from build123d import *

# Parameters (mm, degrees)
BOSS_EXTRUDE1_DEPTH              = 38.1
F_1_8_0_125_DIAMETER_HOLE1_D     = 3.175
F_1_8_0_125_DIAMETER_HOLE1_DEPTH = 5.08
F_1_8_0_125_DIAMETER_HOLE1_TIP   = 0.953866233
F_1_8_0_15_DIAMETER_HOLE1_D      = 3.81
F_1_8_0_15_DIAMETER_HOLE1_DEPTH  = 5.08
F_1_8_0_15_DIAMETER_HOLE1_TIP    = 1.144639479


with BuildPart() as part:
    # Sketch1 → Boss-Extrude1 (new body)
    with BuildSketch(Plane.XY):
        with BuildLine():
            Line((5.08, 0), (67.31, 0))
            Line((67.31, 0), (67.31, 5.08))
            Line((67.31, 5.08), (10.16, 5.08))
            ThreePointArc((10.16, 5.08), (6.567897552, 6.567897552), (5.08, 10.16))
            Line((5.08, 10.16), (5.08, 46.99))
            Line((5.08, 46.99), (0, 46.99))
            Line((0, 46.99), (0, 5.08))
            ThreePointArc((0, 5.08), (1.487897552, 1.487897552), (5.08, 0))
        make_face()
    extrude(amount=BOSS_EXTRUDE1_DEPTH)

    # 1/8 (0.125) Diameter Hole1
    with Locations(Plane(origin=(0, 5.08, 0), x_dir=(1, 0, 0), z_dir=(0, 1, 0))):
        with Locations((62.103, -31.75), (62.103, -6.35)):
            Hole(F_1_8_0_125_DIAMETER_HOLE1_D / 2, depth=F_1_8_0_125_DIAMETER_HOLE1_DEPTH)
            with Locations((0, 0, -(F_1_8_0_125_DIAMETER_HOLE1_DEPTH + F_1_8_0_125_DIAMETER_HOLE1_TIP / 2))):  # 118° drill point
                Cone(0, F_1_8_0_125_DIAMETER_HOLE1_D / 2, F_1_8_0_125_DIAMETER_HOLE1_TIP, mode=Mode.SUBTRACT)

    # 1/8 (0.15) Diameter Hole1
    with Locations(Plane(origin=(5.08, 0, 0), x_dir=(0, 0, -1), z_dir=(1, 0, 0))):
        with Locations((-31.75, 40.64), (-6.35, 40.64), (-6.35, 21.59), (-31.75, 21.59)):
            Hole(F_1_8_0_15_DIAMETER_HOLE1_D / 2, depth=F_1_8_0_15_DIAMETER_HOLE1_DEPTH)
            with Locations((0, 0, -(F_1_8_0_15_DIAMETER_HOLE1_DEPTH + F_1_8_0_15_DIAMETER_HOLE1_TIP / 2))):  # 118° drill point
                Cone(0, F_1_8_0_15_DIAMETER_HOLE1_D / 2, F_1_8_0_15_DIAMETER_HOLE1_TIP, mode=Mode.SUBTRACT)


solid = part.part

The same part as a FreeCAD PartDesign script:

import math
import FreeCAD as App
import Part
import Sketcher
Q = App.Units.Quantity

doc = App.newDocument("Part")
body = doc.addObject("PartDesign::Body", "Body")

sketch1 = body.newObject("Sketcher::SketchObject", "Sketch")
sketch1.AttachmentSupport = (doc.getObject("XY_Plane"), [""])
sketch1.MapMode = "FlatFace"
sketch1.addGeometry(Part.LineSegment(App.Vector(5, 0, 0), App.Vector(67, 0, 0)), False)
sketch1.addGeometry(Part.LineSegment(App.Vector(67, 0, 0), App.Vector(67, 5, 0)), False)
sketch1.addGeometry(Part.LineSegment(App.Vector(67, 5, 0), App.Vector(10, 5, 0)), False)
sketch1.addGeometry(Part.ArcOfCircle(Part.Circle(App.Vector(10, 10, 0), App.Vector(0, 0, 1), 5), math.radians(-180), math.radians(-90)), False)
sketch1.addGeometry(Part.LineSegment(App.Vector(5, 10, 0), App.Vector(5, 47, 0)), False)
sketch1.addGeometry(Part.LineSegment(App.Vector(5, 47, 0), App.Vector(0, 47, 0)), False)
sketch1.addGeometry(Part.LineSegment(App.Vector(0, 47, 0), App.Vector(0, 5, 0)), False)
sketch1.addGeometry(Part.ArcOfCircle(Part.Circle(App.Vector(5, 5, 0), App.Vector(0, 0, 1), 5), math.radians(-180), math.radians(-90)), False)
sketch1.addConstraint(Sketcher.Constraint("Coincident", 0, 2, 1, 1))
sketch1.addConstraint(Sketcher.Constraint("Coincident", 1, 2, 2, 1))
sketch1.addConstraint(Sketcher.Constraint("Tangent", 2, 2, 3, 2))
sketch1.addConstraint(Sketcher.Constraint("Tangent", 3, 1, 4, 1))
sketch1.addConstraint(Sketcher.Constraint("Coincident", 4, 2, 5, 1))
sketch1.addConstraint(Sketcher.Constraint("Coincident", 5, 2, 6, 1))
sketch1.addConstraint(Sketcher.Constraint("Tangent", 6, 2, 7, 1))
sketch1.addConstraint(Sketcher.Constraint("Tangent", 7, 2, 0, 1))
sketch1.addConstraint(Sketcher.Constraint("Horizontal", 0))
sketch1.addConstraint(Sketcher.Constraint("Vertical", 1))
sketch1.addConstraint(Sketcher.Constraint("Horizontal", 2))
sketch1.addConstraint(Sketcher.Constraint("Vertical", 4))
sketch1.addConstraint(Sketcher.Constraint("Horizontal", 5))
sketch1.addConstraint(Sketcher.Constraint("Vertical", 6))
sketch1.addConstraint(Sketcher.Constraint("Equal", 3, 7))
sketch1.addConstraint(Sketcher.Constraint("PointOnObject", 0, 2, -1))
sketch1.addConstraint(Sketcher.Constraint("PointOnObject", 5, 2, -2))
sketch1.addConstraint(Sketcher.Constraint("Horizontal", 7, 3, 1, 2))
sketch1.addConstraint(Sketcher.Constraint("Vertical", 7, 3, 3, 1))
sketch1.addConstraint(Sketcher.Constraint("Radius", 3, Q("0.2 in")))
sketch1.addConstraint(Sketcher.Constraint("DistanceX", 0, 1, 0, 2, Q("2.45 in")))
sketch1.addConstraint(Sketcher.Constraint("DistanceY", 4, 1, 4, 2, Q("1.45 in")))
pad1 = body.newObject("PartDesign::Pad", "Pad")
pad1.Profile = sketch1
pad1.Length = Q("1.5 in")

sketch2 = body.newObject("Sketcher::SketchObject", "Sketch001")
sketch2.AttachmentSupport = (doc.getObject("XZ_Plane"), [""])
sketch2.MapMode = "FlatFace"
sketch2.AttachmentOffset = App.Placement(App.Vector(0, 0, -0.2 * 25.4), App.Rotation())
sketch2.addGeometry(Part.Circle(App.Vector(62.1, 31.8, 0), App.Vector(0, 0, 1), 1.6), False)
sketch2.addGeometry(Part.Circle(App.Vector(62.1, 6.3, 0), App.Vector(0, 0, 1), 1.6), False)
sketch2.addConstraint(Sketcher.Constraint("Equal", 0, 1))
sketch2.addConstraint(Sketcher.Constraint("Vertical", 0, 3, 1, 3))
sketch2.addConstraint(Sketcher.Constraint("Diameter", 0, Q("0.125 in")))
sketch2.addConstraint(Sketcher.Constraint("DistanceY", 1, 3, 0, 3, Q("1 in")))
sketch2.addConstraint(Sketcher.Constraint("DistanceY", -1, 1, 0, 3, Q("1.25 in")))
sketch2.addConstraint(Sketcher.Constraint("DistanceX", -1, 1, 0, 3, Q("2.445 in")))
doc.recompute()
hole = body.newObject("PartDesign::Hole", "Hole")
hole.Profile = sketch2
hole.ThreadType = "None"
hole.Diameter = Q("0.125 in")
hole.DepthType = "Dimension"
hole.Depth = Q("0.2 in")
hole.DrillPoint = "Angled"
hole.DrillPointAngle = 118
hole.Reversed = True

sketch3 = body.newObject("Sketcher::SketchObject", "Sketch002")
sketch3.AttachmentSupport = (doc.getObject("YZ_Plane"), [""])
sketch3.MapMode = "FlatFace"
sketch3.AttachmentOffset = App.Placement(App.Vector(0, 0, 0.2 * 25.4), App.Rotation())
sketch3.addGeometry(Part.Circle(App.Vector(40.6, 31.8, 0), App.Vector(0, 0, 1), 1.9), False)
sketch3.addGeometry(Part.Circle(App.Vector(40.6, 6.3, 0), App.Vector(0, 0, 1), 1.9), False)
sketch3.addGeometry(Part.Circle(App.Vector(21.6, 6.3, 0), App.Vector(0, 0, 1), 1.9), False)
sketch3.addGeometry(Part.Circle(App.Vector(21.6, 31.8, 0), App.Vector(0, 0, 1), 1.9), False)
sketch3.addConstraint(Sketcher.Constraint("Equal", 0, 1))
sketch3.addConstraint(Sketcher.Constraint("Equal", 1, 2))
sketch3.addConstraint(Sketcher.Constraint("Equal", 2, 3))
sketch3.addConstraint(Sketcher.Constraint("Horizontal", 1, 3, 2, 3))
sketch3.addConstraint(Sketcher.Constraint("Horizontal", 0, 3, 3, 3))
sketch3.addConstraint(Sketcher.Constraint("Vertical", 0, 3, 1, 3))
sketch3.addConstraint(Sketcher.Constraint("Vertical", 2, 3, 3, 3))
sketch3.addConstraint(Sketcher.Constraint("Diameter", 0, Q("0.15 in")))
sketch3.addConstraint(Sketcher.Constraint("DistanceY", 1, 3, 0, 3, Q("1 in")))
sketch3.addConstraint(Sketcher.Constraint("DistanceX", -1, 1, 0, 3, Q("1.6 in")))
sketch3.addConstraint(Sketcher.Constraint("DistanceY", -1, 1, 0, 3, Q("1.25 in")))
sketch3.addConstraint(Sketcher.Constraint("DistanceX", -1, 1, 2, 3, Q("0.85 in")))
doc.recompute()
hole2 = body.newObject("PartDesign::Hole", "Hole001")
hole2.Profile = sketch3
hole2.ThreadType = "None"
hole2.Diameter = Q("0.15 in")
hole2.DepthType = "Dimension"
hole2.Depth = Q("0.2 in")
hole2.DrillPoint = "Angled"
hole2.DrillPointAngle = 118

doc.recompute()
